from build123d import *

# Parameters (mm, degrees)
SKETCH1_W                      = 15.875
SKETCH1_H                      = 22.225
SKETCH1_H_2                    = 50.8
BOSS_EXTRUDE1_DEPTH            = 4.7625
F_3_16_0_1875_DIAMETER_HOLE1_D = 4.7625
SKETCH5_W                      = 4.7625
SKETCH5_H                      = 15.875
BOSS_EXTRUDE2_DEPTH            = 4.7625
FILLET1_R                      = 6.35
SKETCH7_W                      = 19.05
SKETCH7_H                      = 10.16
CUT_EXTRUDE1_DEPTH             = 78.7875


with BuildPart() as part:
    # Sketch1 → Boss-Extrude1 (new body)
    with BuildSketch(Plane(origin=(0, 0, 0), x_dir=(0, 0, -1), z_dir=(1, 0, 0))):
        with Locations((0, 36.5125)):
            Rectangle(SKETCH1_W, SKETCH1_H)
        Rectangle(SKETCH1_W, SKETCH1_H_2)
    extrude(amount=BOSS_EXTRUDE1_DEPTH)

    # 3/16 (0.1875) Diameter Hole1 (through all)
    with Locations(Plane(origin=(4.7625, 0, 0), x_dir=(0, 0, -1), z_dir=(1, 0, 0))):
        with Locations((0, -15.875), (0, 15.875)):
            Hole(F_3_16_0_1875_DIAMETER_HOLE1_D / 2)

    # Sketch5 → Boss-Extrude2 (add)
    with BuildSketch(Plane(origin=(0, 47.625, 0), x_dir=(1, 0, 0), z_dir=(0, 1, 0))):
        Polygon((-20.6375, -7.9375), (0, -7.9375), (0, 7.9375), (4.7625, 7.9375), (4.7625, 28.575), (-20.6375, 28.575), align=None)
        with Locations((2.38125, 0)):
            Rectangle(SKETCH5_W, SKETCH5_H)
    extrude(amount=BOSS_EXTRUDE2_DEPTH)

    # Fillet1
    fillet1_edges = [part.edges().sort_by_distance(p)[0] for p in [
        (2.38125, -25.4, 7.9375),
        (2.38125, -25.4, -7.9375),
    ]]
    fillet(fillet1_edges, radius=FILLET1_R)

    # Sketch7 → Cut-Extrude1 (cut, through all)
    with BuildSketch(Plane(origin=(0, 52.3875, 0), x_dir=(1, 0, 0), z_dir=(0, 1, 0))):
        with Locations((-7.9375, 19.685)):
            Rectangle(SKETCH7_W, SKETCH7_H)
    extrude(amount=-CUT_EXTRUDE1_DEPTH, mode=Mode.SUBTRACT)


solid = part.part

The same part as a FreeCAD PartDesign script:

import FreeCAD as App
import Part
import Sketcher
Q = App.Units.Quantity


def edges_at(feature, points):
    """Names of the edges that pass closest to the given points."""
    edges = feature.Shape.Edges
    near = lambda p: min(range(len(edges)), key=lambda i: edges[i].distToShape(Part.Vertex(*p))[0])
    return sorted({f"Edge{near(p) + 1}" for p in points})


def add_polygon(sketch, points):
    """Adds a closed chain of lines whose ends are joined by coincident constraints."""
    first, n = sketch.GeometryCount, len(points)
    for a, b in zip(points, points[1:] + points[:1]):
        sketch.addGeometry(Part.LineSegment(App.Vector(*a, 0), App.Vector(*b, 0)), False)
    for i in range(n):
        sketch.addConstraint(Sketcher.Constraint("Coincident", first + i, 2, first + (i + 1) % n, 1))

doc = App.newDocument("Part")
body = doc.addObject("PartDesign::Body", "Body")

sketch1 = doc.addObject("Sketcher::SketchObject", "Sketch")
body.addObject(sketch1)
sketch1.AttachmentSupport = (doc.YZ_Plane, [""])
sketch1.MapMode = "FlatFace"
add_polygon(sketch1, [(48, 8), (-25, 8), (-25, -8), (48, -8)])
sketch1.addConstraint(Sketcher.Constraint("Horizontal", 0))
sketch1.addConstraint(Sketcher.Constraint("Vertical", 1))
sketch1.addConstraint(Sketcher.Constraint("Horizontal", 2))
sketch1.addConstraint(Sketcher.Constraint("Vertical", 3))
sketch1.addConstraint(Sketcher.Constraint("DistanceX", 0, 2, -1, 1, Q("1 in")))
sketch1.addConstraint(Sketcher.Constraint("DistanceX", 0, 2, 0, 1, Q("2.875 in")))
sketch1.addConstraint(Sketcher.Constraint("DistanceY", 1, 2, 1, 1, Q("0.625 in")))
sketch1.addConstraint(Sketcher.Constraint("DistanceY", -1, 1, 0, 2, Q("0.3125 in")))
pad1 = doc.addObject("PartDesign::Pad", "Pad")
body.addObject(pad1)
pad1.Profile = sketch1
pad1.Length = Q("0.1875 in")

sketch2 = doc.addObject("Sketcher::SketchObject", "Sketch001")
body.addObject(sketch2)
sketch2.AttachmentSupport = (doc.YZ_Plane, [""])
sketch2.MapMode = "FlatFace"
sketch2.AttachmentOffset = App.Placement(App.Vector(0, 0, 0.1875 * 25.4), App.Rotation())
sketch2.addGeometry(Part.Circle(App.Vector(-15.9, 0, 0), App.Vector(0, 0, 1), 2.4), False)
sketch2.addGeometry(Part.Circle(App.Vector(15.9, 0, 0), App.Vector(0, 0, 1), 2.4), False)
sketch2.addConstraint(Sketcher.Constraint("Equal", 0, 1))
sketch2.addConstraint(Sketcher.Constraint("Symmetric", 0, 3, 1, 3, -1, 1))
sketch2.addConstraint(Sketcher.Constraint("PointOnObject", 0, 3, -1))
sketch2.addConstraint(Sketcher.Constraint("Diameter", 0, Q("0.1875 in")))
sketch2.addConstraint(Sketcher.Constraint("DistanceX", 0, 3, 1, 3, Q("1.25 in")))
doc.recompute()
hole = doc.addObject("PartDesign::Hole", "Hole")
body.addObject(hole)
hole.Profile = sketch2
hole.ThreadType = "None"
hole.Diameter = Q("0.1875 in")
hole.DepthType = "ThroughAll"

sketch3 = doc.addObject("Sketcher::SketchObject", "Sketch002")
body.addObject(sketch3)
sketch3.AttachmentSupport = (doc.XZ_Plane, [""])
sketch3.MapMode = "FlatFace"
sketch3.AttachmentOffset = App.Placement(App.Vector(0, 0, -1.875 * 25.4), App.Rotation())
add_polygon(sketch3, [(-21, 8), (5, 8), (5, -29), (-21, -29)])
sketch3.addConstraint(Sketcher.Constraint("Horizontal", 0))
sketch3.addConstraint(Sketcher.Constraint("Vertical", 1))
sketch3.addConstraint(Sketcher.Constraint("Horizontal", 2))
sketch3.addConstraint(Sketcher.Constraint("Vertical", 3))
sketch3.addConstraint(Sketcher.Constraint("DistanceX", 0, 1, 0, 2, Q("1 in")))
sketch3.addConstraint(Sketcher.Constraint("DistanceY", 1, 2, 1, 1, Q("1.4375 in")))
sketch3.addConstraint(Sketcher.Constraint("DistanceX", -1, 1, 0, 2, Q("0.1875 in")))
sketch3.addConstraint(Sketcher.Constraint("DistanceY", -1, 1, 0, 2, Q("0.3125 in")))
pad2 = doc.addObject("PartDesign::Pad", "Pad001")
body.addObject(pad2)
pad2.Profile = sketch3
pad2.Length = Q("0.1875 in")
pad2.Reversed = True
doc.recompute()

fillet = doc.addObject("PartDesign::Fillet", "Fillet")
body.addObject(fillet)
fillet.Base = (pad2, edges_at(pad2, [(2.381, -25.4, 7.938), (2.381, -25.4, -7.938)]))
fillet.Radius = Q("0.25 in")

sketch4 = doc.addObject("Sketcher::SketchObject", "Sketch003")
body.addObject(sketch4)
sketch4.AttachmentSupport = (doc.XZ_Plane, [""])
sketch4.MapMode = "FlatFace"
sketch4.AttachmentOffset = App.Placement(App.Vector(0, 0, -2.0625 * 25.4), App.Rotation())
add_polygon(sketch4, [(-17, -25), (-17, -15), (2, -15), (2, -25)])
sketch4.addConstraint(Sketcher.Constraint("Vertical", 0))
sketch4.addConstraint(Sketcher.Constraint("Horizontal", 1))
sketch4.addConstraint(Sketcher.Constraint("Vertical", 2))
sketch4.addConstraint(Sketcher.Constraint("Horizontal", 3))
sketch4.addConstraint(Sketcher.Constraint("DistanceY", 0, 1, 0, 2, Q("0.4 in")))
sketch4.addConstraint(Sketcher.Constraint("DistanceX", 1, 1, 1, 2, Q("0.75 in")))
sketch4.addConstraint(Sketcher.Constraint("DistanceX", 0, 2, -1, 1, Q("0.6875 in")))
sketch4.addConstraint(Sketcher.Constraint("DistanceY", 0, 2, -1, 1, Q("0.575 in")))
pocket1 = doc.addObject("PartDesign::Pocket", "Pocket")
body.addObject(pocket1)
pocket1.Profile = sketch4
pocket1.Type = "ThroughAll"
pocket1.Reversed = True

doc.recompute()
